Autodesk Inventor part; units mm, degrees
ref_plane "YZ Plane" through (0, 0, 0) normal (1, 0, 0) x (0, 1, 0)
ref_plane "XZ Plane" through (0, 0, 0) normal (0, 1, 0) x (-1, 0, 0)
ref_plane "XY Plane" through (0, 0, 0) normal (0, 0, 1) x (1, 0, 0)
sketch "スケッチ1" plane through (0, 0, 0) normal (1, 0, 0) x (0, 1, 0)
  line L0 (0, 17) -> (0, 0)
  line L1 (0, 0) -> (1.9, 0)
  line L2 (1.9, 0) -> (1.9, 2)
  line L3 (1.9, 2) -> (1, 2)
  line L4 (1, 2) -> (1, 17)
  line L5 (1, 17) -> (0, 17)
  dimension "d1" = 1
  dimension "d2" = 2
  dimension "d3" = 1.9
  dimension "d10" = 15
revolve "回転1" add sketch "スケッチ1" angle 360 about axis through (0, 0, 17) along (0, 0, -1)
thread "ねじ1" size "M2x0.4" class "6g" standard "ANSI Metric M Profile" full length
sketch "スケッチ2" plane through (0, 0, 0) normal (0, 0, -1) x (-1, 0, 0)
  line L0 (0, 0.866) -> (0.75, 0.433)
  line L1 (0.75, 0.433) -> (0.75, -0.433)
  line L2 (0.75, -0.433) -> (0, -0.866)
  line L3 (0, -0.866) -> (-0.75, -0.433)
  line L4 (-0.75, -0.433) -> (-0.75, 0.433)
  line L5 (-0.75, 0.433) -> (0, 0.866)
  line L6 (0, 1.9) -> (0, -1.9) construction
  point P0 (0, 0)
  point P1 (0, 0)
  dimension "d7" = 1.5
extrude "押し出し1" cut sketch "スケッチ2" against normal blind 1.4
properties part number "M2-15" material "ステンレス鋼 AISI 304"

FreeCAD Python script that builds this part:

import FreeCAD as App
import Part
import Sketcher
Q = App.Units.Quantity


def add_polygon(sketch, points):
    """Adds a closed chain of lines whose ends are joined by coincident constraints."""
    first, n = sketch.GeometryCount, len(points)
    for a, b in zip(points, points[1:] + points[:1]):
        sketch.addGeometry(Part.LineSegment(App.Vector(*a, 0), App.Vector(*b, 0)), False)
    for i in range(n):
        sketch.addConstraint(Sketcher.Constraint("Coincident", first + i, 2, first + (i + 1) % n, 1))

doc = App.newDocument("Part")
params = doc.addObject("Spreadsheet::Sheet", "Params")
for row, (alias, value) in enumerate([
    ("sketch1_width", "1 mm"),
    ("sketch1_height", "2 mm"),
    ("sketch1_height2", "15 mm"),
    ("sketch1_width2", "1.9 mm"),
    ("revolution_angle", "360 deg"),
    ("pocket1_length", "1.4 mm"),
], start=1):
    params.set(f"A{row}", alias)
    params.set(f"B{row}", "=" + value)
    params.setAlias(f"B{row}", alias)

body = doc.addObject("PartDesign::Body", "Body")

# Sketch on YZ plane
sketch1 = body.newObject("Sketcher::SketchObject", "Sketch")
sketch1.AttachmentSupport = (doc.getObject("YZ_Plane"), [""])
sketch1.MapMode = "FlatFace"
add_polygon(sketch1, [(1, 17), (0, 17), (0, 0), (1.9, 0), (1.9, 2), (1, 2)])  # lines 0-5
sketch1.addConstraint([
    Sketcher.Constraint("Horizontal", 0),
    Sketcher.Constraint("Vertical", 1),
    Sketcher.Constraint("Horizontal", 2),
    Sketcher.Constraint("Vertical", 3),
    Sketcher.Constraint("Horizontal", 4),
    Sketcher.Constraint("Vertical", 5),
    Sketcher.Constraint("Coincident", 1, 2, -1, 1),
    Sketcher.Constraint("DistanceX", 0, 2, 0, 1, Q("1 mm")),
    Sketcher.Constraint("DistanceY", 3, 1, 3, 2, Q("2 mm")),
    Sketcher.Constraint("DistanceY", 5, 1, 5, 2, Q("15 mm")),
    Sketcher.Constraint("DistanceX", 2, 1, 2, 2, Q("1.9 mm")),
])
sketch1.setExpression("Constraints[13]", "Params.sketch1_width")
sketch1.setExpression("Constraints[14]", "Params.sketch1_height")
sketch1.setExpression("Constraints[15]", "Params.sketch1_height2")
sketch1.setExpression("Constraints[16]", "Params.sketch1_width2")
revolution = body.newObject("PartDesign::Revolution", "Revolution")
revolution.Profile = sketch1
revolution.ReferenceAxis = (sketch1, ["V_Axis"])
revolution.setExpression("Angle", "Params.revolution_angle")

# Sketch on XY plane
sketch2 = body.newObject("Sketcher::SketchObject", "Sketch001")
sketch2.AttachmentSupport = (doc.getObject("XY_Plane"), [""])
sketch2.MapMode = "FlatFace"
add_polygon(sketch2, [(-0.75, 0.433), (0, 0.866), (0.75, 0.433), (0.75, -0.433), (0, -0.866), (-0.75, -0.433)])  # lines 0-5
sketch2.addConstraint([
    Sketcher.Constraint("Vertical", 2),
    Sketcher.Constraint("Vertical", 5),
    Sketcher.Constraint("Symmetric", 0, 2, 3, 2, -1, 1),
    Sketcher.Constraint("Symmetric", 1, 2, 4, 2, -1, 1),
    Sketcher.Constraint("PointOnObject", 0, 2, -2),
    Sketcher.Constraint("Parallel", 0, 3),
    Sketcher.Constraint("Horizontal", 2, 2, 4, 2),
    Sketcher.Constraint("DistanceX", 4, 2, 2, 2, Q("1.5 mm")),
    Sketcher.Constraint("Angle", 0, Q("29.9993 deg")),
    Sketcher.Constraint("DistanceY", 2, 2, 2, 1, Q("0.866 mm")),
])
pocket1 = body.newObject("PartDesign::Pocket", "Pocket")
pocket1.Profile = sketch2
pocket1.setExpression("Length", "Params.pocket1_length")
pocket1.Reversed = True

doc.recompute()
